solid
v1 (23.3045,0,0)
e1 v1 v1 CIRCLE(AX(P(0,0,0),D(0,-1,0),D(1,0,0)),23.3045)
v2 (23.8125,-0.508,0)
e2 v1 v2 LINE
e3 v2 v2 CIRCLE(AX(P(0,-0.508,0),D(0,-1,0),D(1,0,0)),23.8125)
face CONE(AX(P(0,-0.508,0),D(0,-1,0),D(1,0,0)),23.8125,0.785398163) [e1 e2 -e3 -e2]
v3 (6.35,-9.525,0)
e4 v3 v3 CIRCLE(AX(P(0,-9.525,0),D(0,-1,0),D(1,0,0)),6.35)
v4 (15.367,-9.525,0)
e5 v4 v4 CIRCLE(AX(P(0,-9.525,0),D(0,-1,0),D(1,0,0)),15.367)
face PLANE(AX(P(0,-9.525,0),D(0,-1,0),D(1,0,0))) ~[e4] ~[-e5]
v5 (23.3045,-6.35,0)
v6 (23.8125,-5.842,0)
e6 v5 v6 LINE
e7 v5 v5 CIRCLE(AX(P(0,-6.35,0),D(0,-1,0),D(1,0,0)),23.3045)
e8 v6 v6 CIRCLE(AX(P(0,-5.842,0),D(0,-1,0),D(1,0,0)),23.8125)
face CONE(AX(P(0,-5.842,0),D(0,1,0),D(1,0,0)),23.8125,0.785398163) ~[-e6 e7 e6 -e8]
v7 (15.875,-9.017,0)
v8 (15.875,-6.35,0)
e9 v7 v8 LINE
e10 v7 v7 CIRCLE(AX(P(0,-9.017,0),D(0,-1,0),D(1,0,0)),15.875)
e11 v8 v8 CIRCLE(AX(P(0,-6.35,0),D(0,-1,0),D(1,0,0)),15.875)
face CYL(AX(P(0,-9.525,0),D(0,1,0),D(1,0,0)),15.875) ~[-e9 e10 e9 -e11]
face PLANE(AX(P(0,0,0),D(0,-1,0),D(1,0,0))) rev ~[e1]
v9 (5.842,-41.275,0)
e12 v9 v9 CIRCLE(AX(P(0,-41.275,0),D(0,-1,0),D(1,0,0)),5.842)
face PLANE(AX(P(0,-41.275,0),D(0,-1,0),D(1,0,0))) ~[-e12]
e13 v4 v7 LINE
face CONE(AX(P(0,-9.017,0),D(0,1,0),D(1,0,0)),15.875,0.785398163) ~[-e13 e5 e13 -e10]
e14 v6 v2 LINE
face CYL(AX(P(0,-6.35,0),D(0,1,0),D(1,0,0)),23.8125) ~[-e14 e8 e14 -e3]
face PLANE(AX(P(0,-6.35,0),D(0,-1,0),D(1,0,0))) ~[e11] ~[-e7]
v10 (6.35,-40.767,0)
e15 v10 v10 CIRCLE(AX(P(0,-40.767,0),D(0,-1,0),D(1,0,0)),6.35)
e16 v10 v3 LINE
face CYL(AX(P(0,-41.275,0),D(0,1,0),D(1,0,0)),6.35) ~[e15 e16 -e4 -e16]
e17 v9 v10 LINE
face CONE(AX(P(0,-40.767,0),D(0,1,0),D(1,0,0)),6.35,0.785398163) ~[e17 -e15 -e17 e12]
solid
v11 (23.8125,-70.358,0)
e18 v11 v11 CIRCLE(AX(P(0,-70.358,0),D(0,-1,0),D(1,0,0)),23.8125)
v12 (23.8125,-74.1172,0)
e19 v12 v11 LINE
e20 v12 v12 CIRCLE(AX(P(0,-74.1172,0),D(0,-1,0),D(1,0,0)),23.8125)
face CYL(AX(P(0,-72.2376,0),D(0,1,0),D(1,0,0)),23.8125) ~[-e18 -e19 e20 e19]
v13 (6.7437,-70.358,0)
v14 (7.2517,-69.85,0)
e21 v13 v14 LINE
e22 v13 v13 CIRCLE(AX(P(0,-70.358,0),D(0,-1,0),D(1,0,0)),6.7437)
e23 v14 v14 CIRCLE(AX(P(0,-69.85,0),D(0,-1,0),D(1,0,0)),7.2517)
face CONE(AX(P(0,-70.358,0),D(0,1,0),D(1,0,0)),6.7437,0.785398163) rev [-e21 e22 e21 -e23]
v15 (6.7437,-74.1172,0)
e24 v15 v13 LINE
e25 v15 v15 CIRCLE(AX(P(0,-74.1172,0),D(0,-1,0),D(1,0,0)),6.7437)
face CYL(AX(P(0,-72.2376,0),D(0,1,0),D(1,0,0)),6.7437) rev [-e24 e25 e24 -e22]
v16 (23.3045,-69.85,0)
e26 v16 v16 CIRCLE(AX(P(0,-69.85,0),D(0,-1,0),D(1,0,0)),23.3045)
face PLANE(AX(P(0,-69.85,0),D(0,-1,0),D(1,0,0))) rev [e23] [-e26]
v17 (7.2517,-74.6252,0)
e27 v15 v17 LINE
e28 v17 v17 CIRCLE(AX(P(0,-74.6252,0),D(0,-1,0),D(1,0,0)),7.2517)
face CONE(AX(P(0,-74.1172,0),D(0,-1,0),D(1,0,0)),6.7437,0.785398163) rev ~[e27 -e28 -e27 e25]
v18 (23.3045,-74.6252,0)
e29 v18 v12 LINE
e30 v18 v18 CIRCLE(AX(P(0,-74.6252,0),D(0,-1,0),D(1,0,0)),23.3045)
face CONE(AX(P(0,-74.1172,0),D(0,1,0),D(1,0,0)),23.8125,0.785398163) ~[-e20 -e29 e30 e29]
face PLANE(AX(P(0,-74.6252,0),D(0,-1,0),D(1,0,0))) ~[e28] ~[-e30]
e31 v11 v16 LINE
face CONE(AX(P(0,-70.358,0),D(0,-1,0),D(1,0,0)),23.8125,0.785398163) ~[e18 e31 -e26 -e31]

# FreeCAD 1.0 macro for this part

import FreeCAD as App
import Part
import Sketcher

V = App.Vector
Q = App.Units.Quantity


def edges_at(feature, points):
    """Names of the edges that pass closest to the given points."""
    edges = feature.Shape.Edges
    near = lambda p: min(range(len(edges)), key=lambda i: edges[i].distToShape(Part.Vertex(*p))[0])
    return sorted({f"Edge{near(p) + 1}" for p in points})

doc = App.newDocument("Part")
body = doc.addObject("PartDesign::Body", "Body")

# Sketch on XY plane
sketch1 = doc.addObject("Sketcher::SketchObject", "Sketch")
body.addObject(sketch1)
sketch1.AttachmentSupport = (doc.XY_Plane, [""])
sketch1.MapMode = "FlatFace"
sketch1.addGeometry([
    Part.LineSegment(V(23.8125, 0, 0), V(0, 0, 0)),  # 0
    Part.LineSegment(V(0, 0, 0), V(0, -41.275, 0)),  # 1
    Part.LineSegment(V(0, -41.275, 0), V(6.35, -41.275, 0)),  # 2
    Part.LineSegment(V(6.35, -41.275, 0), V(6.35, -9.525, 0)),  # 3
    Part.LineSegment(V(6.35, -9.525, 0), V(15.875, -9.525, 0)),  # 4
    Part.LineSegment(V(15.875, -9.525, 0), V(15.875, -6.35, 0)),  # 5
    Part.LineSegment(V(15.875, -6.35, 0), V(23.8125, -6.35, 0)),  # 6
    Part.LineSegment(V(23.8125, -6.35, 0), V(23.8125, 0, 0)),  # 7
], False)
sketch1.addConstraint([
    Sketcher.Constraint("Coincident", 0, 2, 1, 1),
    Sketcher.Constraint("Coincident", 1, 2, 2, 1),
    Sketcher.Constraint("Coincident", 2, 2, 3, 1),
    Sketcher.Constraint("Coincident", 3, 2, 4, 1),
    Sketcher.Constraint("Coincident", 4, 2, 5, 1),
    Sketcher.Constraint("Coincident", 5, 2, 6, 1),
    Sketcher.Constraint("Coincident", 6, 2, 7, 1),
    Sketcher.Constraint("Coincident", 7, 2, 0, 1),
    Sketcher.Constraint("Horizontal", 0),
    Sketcher.Constraint("Vertical", 1),
    Sketcher.Constraint("Horizontal", 2),
    Sketcher.Constraint("Vertical", 3),
    Sketcher.Constraint("Horizontal", 4),
    Sketcher.Constraint("Vertical", 5),
    Sketcher.Constraint("Horizontal", 6),
    Sketcher.Constraint("Vertical", 7),
    Sketcher.Constraint("Coincident", 0, 2, -1, 1),
    Sketcher.Constraint("Equal", 2, 7),
    Sketcher.Constraint("DistanceX", 2, 1, 2, 2, Q("0.25 in")),
    Sketcher.Constraint("DistanceY", 3, 1, 3, 2, Q("1.25 in")),
    Sketcher.Constraint("DistanceX", 0, 2, 0, 1, Q("0.9375 in")),
    Sketcher.Constraint("DistanceX", 4, 1, 4, 2, Q("0.375 in")),
    Sketcher.Constraint("DistanceY", 1, 2, 1, 1, Q("1.625 in")),
])
revolution = doc.addObject("PartDesign::Revolution", "Revolution")
body.addObject(revolution)
revolution.Profile = sketch1
revolution.ReferenceAxis = (sketch1, ["V_Axis"])
revolution.Angle = 360
doc.recompute()

chamfer = doc.addObject("PartDesign::Chamfer", "Chamfer")
body.addObject(chamfer)
chamfer.Base = (revolution, edges_at(revolution, [
    (-23.812, 0, 0),
    (-23.812, -6.35, 0),
    (-15.875, -9.525, 0),
    (-6.35, -41.275, 0),
]))
chamfer.Size = Q("0.02 in")
body2 = doc.addObject("PartDesign::Body", "Body001")

# Sketch on XY plane
sketch2 = doc.addObject("Sketcher::SketchObject", "Sketch001")
body2.addObject(sketch2)
sketch2.AttachmentSupport = (doc.getObject("XY_Plane001"), [""])
sketch2.MapMode = "FlatFace"
sketch2.addGeometry([
    Part.LineSegment(V(6.7437, -69.85, 0), V(6.7437, -74.6252, 0)),
    Part.LineSegment(V(6.7437, -74.6252, 0), V(23.8125, -74.6252, 0)),
    Part.LineSegment(V(23.8125, -74.6252, 0), V(23.8125, -69.85, 0)),
    Part.LineSegment(V(23.8125, -69.85, 0), V(6.7437, -69.85, 0)),
], False)
sketch2.addConstraint([
    Sketcher.Constraint("Coincident", 0, 2, 1, 1),
    Sketcher.Constraint("Coincident", 1, 2, 2, 1),
    Sketcher.Constraint("Coincident", 2, 2, 3, 1),
    Sketcher.Constraint("Coincident", 3, 2, 0, 1),
    Sketcher.Constraint("Vertical", 0),
    Sketcher.Constraint("Horizontal", 1),
    Sketcher.Constraint("Vertical", 2),
    Sketcher.Constraint("Horizontal", 3),
    Sketcher.Constraint("DistanceX", 1, 1, 1, 2, Q("0.672 in")),
    Sketcher.Constraint("DistanceY", 0, 2, 0, 1, Q("0.188 in")),
    Sketcher.Constraint("DistanceY", 2, 2, -1, 1, Q("2.75 in")),
    Sketcher.Constraint("DistanceX", -1, 1, 1, 2, Q("0.9375 in")),
])
revolution2 = doc.addObject("PartDesign::Revolution", "Revolution001")
body2.addObject(revolution2)
revolution2.Profile = sketch2
revolution2.ReferenceAxis = (sketch2, ["V_Axis"])
revolution2.Angle = 360
doc.recompute()

chamfer2 = doc.addObject("PartDesign::Chamfer", "Chamfer001")
body2.addObject(chamfer2)
chamfer2.Base = (revolution2, edges_at(revolution2, [
    (-23.812, -69.85, 0),
    (-23.812, -74.625, 0),
    (-6.744, -74.625, 0),
    (-6.744, -69.85, 0),
]))
chamfer2.Size = Q("0.02 in")

doc.recompute()
